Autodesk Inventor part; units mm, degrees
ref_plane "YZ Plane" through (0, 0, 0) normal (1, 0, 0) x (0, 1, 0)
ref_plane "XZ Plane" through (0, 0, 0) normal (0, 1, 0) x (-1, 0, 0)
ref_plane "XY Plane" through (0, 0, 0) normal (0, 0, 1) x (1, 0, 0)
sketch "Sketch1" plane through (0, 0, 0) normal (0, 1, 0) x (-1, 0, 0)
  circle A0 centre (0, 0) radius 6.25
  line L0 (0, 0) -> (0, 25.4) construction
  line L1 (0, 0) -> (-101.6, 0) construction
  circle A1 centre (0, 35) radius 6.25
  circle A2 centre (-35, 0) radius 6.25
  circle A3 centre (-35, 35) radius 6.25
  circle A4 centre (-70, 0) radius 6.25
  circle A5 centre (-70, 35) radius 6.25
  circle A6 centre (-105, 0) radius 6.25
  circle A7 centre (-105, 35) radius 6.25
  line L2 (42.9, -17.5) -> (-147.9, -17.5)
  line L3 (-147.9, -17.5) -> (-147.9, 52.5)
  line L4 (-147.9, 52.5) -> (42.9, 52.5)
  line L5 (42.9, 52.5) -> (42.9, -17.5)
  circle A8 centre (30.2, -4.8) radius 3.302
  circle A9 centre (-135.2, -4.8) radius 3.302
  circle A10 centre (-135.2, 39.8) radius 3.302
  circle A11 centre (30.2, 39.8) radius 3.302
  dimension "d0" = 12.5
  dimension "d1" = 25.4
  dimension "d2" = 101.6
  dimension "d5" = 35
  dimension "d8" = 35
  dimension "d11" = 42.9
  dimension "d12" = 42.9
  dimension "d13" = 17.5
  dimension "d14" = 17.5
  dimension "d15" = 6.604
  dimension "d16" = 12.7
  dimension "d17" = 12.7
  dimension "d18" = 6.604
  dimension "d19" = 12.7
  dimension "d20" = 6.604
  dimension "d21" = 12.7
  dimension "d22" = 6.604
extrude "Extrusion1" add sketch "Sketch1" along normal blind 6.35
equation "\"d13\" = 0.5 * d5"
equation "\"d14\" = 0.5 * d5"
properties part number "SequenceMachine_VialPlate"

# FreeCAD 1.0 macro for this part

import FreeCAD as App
import Part
import Sketcher
Q = App.Units.Quantity


def add_polygon(sketch, points):
    """Adds a closed chain of lines whose ends are joined by coincident constraints."""
    first, n = sketch.GeometryCount, len(points)
    for a, b in zip(points, points[1:] + points[:1]):
        sketch.addGeometry(Part.LineSegment(App.Vector(*a, 0), App.Vector(*b, 0)), False)
    for i in range(n):
        sketch.addConstraint(Sketcher.Constraint("Coincident", first + i, 2, first + (i + 1) % n, 1))

doc = App.newDocument("Part")
body = doc.addObject("PartDesign::Body", "Body")

# Sketch on XZ plane
sketch1 = body.newObject("Sketcher::SketchObject", "Sketch")
sketch1.AttachmentSupport = (doc.getObject("XZ_Plane"), [""])
sketch1.MapMode = "FlatFace"
add_polygon(sketch1, [(147.9, -17.5), (-42.9, -17.5), (-42.9, 52.5), (147.9, 52.5)])  # lines 0-3
sketch1.addGeometry(Part.Circle(App.Vector(135.2, -4.8, 0), App.Vector(0, 0, 1), 3.3), False)  # 4
sketch1.addGeometry(Part.Circle(App.Vector(105, 0, 0), App.Vector(0, 0, 1), 6.2), False)  # 5
sketch1.addGeometry(Part.Circle(App.Vector(70, 0, 0), App.Vector(0, 0, 1), 6.2), False)  # 6
sketch1.addGeometry(Part.Circle(App.Vector(-30.2, -4.8, 0), App.Vector(0, 0, 1), 3.3), False)  # 7
sketch1.addGeometry(Part.Circle(App.Vector(35, 0, 0), App.Vector(0, 0, 1), 6.2), False)  # 8
sketch1.addGeometry(Part.Circle(App.Vector(0, 0, 0), App.Vector(0, 0, 1), 6.2), False)  # 9
sketch1.addGeometry(Part.Circle(App.Vector(135.2, 39.8, 0), App.Vector(0, 0, 1), 3.3), False)  # 10
sketch1.addGeometry(Part.Circle(App.Vector(105, 35, 0), App.Vector(0, 0, 1), 6.2), False)  # 11
sketch1.addGeometry(Part.Circle(App.Vector(70, 35, 0), App.Vector(0, 0, 1), 6.2), False)  # 12
sketch1.addGeometry(Part.Circle(App.Vector(35, 35, 0), App.Vector(0, 0, 1), 6.2), False)  # 13
sketch1.addGeometry(Part.Circle(App.Vector(0, 35, 0), App.Vector(0, 0, 1), 6.2), False)  # 14
sketch1.addGeometry(Part.Circle(App.Vector(-30.2, 39.8, 0), App.Vector(0, 0, 1), 3.3), False)  # 15
sketch1.addConstraint(Sketcher.Constraint("Horizontal", 0))
sketch1.addConstraint(Sketcher.Constraint("Vertical", 1))
sketch1.addConstraint(Sketcher.Constraint("Horizontal", 2))
sketch1.addConstraint(Sketcher.Constraint("Vertical", 3))
sketch1.addConstraint(Sketcher.Constraint("Coincident", 9, 3, -1, 1))
sketch1.addConstraint(Sketcher.Constraint("Equal", 5, 6))
sketch1.addConstraint(Sketcher.Constraint("Equal", 4, 7))
sketch1.addConstraint(Sketcher.Constraint("Equal", 6, 8))
sketch1.addConstraint(Sketcher.Constraint("Equal", 8, 9))
sketch1.addConstraint(Sketcher.Constraint("Equal", 7, 10))
sketch1.addConstraint(Sketcher.Constraint("Equal", 9, 11))
sketch1.addConstraint(Sketcher.Constraint("Equal", 11, 12))
sketch1.addConstraint(Sketcher.Constraint("Equal", 12, 13))
sketch1.addConstraint(Sketcher.Constraint("Equal", 13, 14))
sketch1.addConstraint(Sketcher.Constraint("Equal", 10, 15))
sketch1.addConstraint(Sketcher.Constraint("PointOnObject", 5, 3, -1))
sketch1.addConstraint(Sketcher.Constraint("PointOnObject", 6, 3, -1))
sketch1.addConstraint(Sketcher.Constraint("PointOnObject", 8, 3, -1))
sketch1.addConstraint(Sketcher.Constraint("PointOnObject", 14, 3, -2))
sketch1.addConstraint(Sketcher.Constraint("Horizontal", 4, 3, 7, 3))
sketch1.addConstraint(Sketcher.Constraint("Horizontal", 11, 3, 12, 3))
sketch1.addConstraint(Sketcher.Constraint("Horizontal", 12, 3, 13, 3))
sketch1.addConstraint(Sketcher.Constraint("Horizontal", 13, 3, 14, 3))
sketch1.addConstraint(Sketcher.Constraint("Horizontal", 10, 3, 15, 3))
sketch1.addConstraint(Sketcher.Constraint("Vertical", 4, 3, 10, 3))
sketch1.addConstraint(Sketcher.Constraint("Vertical", 5, 3, 11, 3))
sketch1.addConstraint(Sketcher.Constraint("Vertical", 6, 3, 12, 3))
sketch1.addConstraint(Sketcher.Constraint("Vertical", 8, 3, 13, 3))
sketch1.addConstraint(Sketcher.Constraint("Vertical", 7, 3, 15, 3))
sketch1.addConstraint(Sketcher.Constraint("Diameter", 4, Q("0.26 in")))
sketch1.addConstraint(Sketcher.Constraint("DistanceX", 0, 2, 7, 3, Q("0.5 in")))
sketch1.addConstraint(Sketcher.Constraint("DistanceY", 0, 2, 7, 3, Q("0.5 in")))
sketch1.addConstraint(Sketcher.Constraint("DistanceY", 15, 3, 1, 2, Q("0.5 in")))
sketch1.addConstraint(Sketcher.Constraint("DistanceX", 10, 3, 2, 2, Q("0.5 in")))
sketch1.addConstraint(Sketcher.Constraint("Diameter", 5, 12.5))
sketch1.addConstraint(Sketcher.Constraint("DistanceX", -1, 1, 8, 3, 35.0))
sketch1.addConstraint(Sketcher.Constraint("DistanceY", -1, 1, 11, 3, 35.0))
sketch1.addConstraint(Sketcher.Constraint("DistanceX", 0, 2, -1, 1, 42.9))
sketch1.addConstraint(Sketcher.Constraint("DistanceY", 0, 2, -1, 1, 17.5))
sketch1.addConstraint(Sketcher.Constraint("DistanceX", 6, 3, 5, 3, 35.0))
sketch1.addConstraint(Sketcher.Constraint("DistanceX", 8, 3, 6, 3, 35.0))
sketch1.addConstraint(Sketcher.Constraint("DistanceY", 14, 3, 1, 2, 17.5))
sketch1.addConstraint(Sketcher.Constraint("DistanceX", 11, 3, 2, 2, 42.9))
pad1 = body.newObject("PartDesign::Pad", "Pad")
pad1.Profile = sketch1
pad1.Length = Q("0.25 in")
pad1.Reversed = True

doc.recompute()
